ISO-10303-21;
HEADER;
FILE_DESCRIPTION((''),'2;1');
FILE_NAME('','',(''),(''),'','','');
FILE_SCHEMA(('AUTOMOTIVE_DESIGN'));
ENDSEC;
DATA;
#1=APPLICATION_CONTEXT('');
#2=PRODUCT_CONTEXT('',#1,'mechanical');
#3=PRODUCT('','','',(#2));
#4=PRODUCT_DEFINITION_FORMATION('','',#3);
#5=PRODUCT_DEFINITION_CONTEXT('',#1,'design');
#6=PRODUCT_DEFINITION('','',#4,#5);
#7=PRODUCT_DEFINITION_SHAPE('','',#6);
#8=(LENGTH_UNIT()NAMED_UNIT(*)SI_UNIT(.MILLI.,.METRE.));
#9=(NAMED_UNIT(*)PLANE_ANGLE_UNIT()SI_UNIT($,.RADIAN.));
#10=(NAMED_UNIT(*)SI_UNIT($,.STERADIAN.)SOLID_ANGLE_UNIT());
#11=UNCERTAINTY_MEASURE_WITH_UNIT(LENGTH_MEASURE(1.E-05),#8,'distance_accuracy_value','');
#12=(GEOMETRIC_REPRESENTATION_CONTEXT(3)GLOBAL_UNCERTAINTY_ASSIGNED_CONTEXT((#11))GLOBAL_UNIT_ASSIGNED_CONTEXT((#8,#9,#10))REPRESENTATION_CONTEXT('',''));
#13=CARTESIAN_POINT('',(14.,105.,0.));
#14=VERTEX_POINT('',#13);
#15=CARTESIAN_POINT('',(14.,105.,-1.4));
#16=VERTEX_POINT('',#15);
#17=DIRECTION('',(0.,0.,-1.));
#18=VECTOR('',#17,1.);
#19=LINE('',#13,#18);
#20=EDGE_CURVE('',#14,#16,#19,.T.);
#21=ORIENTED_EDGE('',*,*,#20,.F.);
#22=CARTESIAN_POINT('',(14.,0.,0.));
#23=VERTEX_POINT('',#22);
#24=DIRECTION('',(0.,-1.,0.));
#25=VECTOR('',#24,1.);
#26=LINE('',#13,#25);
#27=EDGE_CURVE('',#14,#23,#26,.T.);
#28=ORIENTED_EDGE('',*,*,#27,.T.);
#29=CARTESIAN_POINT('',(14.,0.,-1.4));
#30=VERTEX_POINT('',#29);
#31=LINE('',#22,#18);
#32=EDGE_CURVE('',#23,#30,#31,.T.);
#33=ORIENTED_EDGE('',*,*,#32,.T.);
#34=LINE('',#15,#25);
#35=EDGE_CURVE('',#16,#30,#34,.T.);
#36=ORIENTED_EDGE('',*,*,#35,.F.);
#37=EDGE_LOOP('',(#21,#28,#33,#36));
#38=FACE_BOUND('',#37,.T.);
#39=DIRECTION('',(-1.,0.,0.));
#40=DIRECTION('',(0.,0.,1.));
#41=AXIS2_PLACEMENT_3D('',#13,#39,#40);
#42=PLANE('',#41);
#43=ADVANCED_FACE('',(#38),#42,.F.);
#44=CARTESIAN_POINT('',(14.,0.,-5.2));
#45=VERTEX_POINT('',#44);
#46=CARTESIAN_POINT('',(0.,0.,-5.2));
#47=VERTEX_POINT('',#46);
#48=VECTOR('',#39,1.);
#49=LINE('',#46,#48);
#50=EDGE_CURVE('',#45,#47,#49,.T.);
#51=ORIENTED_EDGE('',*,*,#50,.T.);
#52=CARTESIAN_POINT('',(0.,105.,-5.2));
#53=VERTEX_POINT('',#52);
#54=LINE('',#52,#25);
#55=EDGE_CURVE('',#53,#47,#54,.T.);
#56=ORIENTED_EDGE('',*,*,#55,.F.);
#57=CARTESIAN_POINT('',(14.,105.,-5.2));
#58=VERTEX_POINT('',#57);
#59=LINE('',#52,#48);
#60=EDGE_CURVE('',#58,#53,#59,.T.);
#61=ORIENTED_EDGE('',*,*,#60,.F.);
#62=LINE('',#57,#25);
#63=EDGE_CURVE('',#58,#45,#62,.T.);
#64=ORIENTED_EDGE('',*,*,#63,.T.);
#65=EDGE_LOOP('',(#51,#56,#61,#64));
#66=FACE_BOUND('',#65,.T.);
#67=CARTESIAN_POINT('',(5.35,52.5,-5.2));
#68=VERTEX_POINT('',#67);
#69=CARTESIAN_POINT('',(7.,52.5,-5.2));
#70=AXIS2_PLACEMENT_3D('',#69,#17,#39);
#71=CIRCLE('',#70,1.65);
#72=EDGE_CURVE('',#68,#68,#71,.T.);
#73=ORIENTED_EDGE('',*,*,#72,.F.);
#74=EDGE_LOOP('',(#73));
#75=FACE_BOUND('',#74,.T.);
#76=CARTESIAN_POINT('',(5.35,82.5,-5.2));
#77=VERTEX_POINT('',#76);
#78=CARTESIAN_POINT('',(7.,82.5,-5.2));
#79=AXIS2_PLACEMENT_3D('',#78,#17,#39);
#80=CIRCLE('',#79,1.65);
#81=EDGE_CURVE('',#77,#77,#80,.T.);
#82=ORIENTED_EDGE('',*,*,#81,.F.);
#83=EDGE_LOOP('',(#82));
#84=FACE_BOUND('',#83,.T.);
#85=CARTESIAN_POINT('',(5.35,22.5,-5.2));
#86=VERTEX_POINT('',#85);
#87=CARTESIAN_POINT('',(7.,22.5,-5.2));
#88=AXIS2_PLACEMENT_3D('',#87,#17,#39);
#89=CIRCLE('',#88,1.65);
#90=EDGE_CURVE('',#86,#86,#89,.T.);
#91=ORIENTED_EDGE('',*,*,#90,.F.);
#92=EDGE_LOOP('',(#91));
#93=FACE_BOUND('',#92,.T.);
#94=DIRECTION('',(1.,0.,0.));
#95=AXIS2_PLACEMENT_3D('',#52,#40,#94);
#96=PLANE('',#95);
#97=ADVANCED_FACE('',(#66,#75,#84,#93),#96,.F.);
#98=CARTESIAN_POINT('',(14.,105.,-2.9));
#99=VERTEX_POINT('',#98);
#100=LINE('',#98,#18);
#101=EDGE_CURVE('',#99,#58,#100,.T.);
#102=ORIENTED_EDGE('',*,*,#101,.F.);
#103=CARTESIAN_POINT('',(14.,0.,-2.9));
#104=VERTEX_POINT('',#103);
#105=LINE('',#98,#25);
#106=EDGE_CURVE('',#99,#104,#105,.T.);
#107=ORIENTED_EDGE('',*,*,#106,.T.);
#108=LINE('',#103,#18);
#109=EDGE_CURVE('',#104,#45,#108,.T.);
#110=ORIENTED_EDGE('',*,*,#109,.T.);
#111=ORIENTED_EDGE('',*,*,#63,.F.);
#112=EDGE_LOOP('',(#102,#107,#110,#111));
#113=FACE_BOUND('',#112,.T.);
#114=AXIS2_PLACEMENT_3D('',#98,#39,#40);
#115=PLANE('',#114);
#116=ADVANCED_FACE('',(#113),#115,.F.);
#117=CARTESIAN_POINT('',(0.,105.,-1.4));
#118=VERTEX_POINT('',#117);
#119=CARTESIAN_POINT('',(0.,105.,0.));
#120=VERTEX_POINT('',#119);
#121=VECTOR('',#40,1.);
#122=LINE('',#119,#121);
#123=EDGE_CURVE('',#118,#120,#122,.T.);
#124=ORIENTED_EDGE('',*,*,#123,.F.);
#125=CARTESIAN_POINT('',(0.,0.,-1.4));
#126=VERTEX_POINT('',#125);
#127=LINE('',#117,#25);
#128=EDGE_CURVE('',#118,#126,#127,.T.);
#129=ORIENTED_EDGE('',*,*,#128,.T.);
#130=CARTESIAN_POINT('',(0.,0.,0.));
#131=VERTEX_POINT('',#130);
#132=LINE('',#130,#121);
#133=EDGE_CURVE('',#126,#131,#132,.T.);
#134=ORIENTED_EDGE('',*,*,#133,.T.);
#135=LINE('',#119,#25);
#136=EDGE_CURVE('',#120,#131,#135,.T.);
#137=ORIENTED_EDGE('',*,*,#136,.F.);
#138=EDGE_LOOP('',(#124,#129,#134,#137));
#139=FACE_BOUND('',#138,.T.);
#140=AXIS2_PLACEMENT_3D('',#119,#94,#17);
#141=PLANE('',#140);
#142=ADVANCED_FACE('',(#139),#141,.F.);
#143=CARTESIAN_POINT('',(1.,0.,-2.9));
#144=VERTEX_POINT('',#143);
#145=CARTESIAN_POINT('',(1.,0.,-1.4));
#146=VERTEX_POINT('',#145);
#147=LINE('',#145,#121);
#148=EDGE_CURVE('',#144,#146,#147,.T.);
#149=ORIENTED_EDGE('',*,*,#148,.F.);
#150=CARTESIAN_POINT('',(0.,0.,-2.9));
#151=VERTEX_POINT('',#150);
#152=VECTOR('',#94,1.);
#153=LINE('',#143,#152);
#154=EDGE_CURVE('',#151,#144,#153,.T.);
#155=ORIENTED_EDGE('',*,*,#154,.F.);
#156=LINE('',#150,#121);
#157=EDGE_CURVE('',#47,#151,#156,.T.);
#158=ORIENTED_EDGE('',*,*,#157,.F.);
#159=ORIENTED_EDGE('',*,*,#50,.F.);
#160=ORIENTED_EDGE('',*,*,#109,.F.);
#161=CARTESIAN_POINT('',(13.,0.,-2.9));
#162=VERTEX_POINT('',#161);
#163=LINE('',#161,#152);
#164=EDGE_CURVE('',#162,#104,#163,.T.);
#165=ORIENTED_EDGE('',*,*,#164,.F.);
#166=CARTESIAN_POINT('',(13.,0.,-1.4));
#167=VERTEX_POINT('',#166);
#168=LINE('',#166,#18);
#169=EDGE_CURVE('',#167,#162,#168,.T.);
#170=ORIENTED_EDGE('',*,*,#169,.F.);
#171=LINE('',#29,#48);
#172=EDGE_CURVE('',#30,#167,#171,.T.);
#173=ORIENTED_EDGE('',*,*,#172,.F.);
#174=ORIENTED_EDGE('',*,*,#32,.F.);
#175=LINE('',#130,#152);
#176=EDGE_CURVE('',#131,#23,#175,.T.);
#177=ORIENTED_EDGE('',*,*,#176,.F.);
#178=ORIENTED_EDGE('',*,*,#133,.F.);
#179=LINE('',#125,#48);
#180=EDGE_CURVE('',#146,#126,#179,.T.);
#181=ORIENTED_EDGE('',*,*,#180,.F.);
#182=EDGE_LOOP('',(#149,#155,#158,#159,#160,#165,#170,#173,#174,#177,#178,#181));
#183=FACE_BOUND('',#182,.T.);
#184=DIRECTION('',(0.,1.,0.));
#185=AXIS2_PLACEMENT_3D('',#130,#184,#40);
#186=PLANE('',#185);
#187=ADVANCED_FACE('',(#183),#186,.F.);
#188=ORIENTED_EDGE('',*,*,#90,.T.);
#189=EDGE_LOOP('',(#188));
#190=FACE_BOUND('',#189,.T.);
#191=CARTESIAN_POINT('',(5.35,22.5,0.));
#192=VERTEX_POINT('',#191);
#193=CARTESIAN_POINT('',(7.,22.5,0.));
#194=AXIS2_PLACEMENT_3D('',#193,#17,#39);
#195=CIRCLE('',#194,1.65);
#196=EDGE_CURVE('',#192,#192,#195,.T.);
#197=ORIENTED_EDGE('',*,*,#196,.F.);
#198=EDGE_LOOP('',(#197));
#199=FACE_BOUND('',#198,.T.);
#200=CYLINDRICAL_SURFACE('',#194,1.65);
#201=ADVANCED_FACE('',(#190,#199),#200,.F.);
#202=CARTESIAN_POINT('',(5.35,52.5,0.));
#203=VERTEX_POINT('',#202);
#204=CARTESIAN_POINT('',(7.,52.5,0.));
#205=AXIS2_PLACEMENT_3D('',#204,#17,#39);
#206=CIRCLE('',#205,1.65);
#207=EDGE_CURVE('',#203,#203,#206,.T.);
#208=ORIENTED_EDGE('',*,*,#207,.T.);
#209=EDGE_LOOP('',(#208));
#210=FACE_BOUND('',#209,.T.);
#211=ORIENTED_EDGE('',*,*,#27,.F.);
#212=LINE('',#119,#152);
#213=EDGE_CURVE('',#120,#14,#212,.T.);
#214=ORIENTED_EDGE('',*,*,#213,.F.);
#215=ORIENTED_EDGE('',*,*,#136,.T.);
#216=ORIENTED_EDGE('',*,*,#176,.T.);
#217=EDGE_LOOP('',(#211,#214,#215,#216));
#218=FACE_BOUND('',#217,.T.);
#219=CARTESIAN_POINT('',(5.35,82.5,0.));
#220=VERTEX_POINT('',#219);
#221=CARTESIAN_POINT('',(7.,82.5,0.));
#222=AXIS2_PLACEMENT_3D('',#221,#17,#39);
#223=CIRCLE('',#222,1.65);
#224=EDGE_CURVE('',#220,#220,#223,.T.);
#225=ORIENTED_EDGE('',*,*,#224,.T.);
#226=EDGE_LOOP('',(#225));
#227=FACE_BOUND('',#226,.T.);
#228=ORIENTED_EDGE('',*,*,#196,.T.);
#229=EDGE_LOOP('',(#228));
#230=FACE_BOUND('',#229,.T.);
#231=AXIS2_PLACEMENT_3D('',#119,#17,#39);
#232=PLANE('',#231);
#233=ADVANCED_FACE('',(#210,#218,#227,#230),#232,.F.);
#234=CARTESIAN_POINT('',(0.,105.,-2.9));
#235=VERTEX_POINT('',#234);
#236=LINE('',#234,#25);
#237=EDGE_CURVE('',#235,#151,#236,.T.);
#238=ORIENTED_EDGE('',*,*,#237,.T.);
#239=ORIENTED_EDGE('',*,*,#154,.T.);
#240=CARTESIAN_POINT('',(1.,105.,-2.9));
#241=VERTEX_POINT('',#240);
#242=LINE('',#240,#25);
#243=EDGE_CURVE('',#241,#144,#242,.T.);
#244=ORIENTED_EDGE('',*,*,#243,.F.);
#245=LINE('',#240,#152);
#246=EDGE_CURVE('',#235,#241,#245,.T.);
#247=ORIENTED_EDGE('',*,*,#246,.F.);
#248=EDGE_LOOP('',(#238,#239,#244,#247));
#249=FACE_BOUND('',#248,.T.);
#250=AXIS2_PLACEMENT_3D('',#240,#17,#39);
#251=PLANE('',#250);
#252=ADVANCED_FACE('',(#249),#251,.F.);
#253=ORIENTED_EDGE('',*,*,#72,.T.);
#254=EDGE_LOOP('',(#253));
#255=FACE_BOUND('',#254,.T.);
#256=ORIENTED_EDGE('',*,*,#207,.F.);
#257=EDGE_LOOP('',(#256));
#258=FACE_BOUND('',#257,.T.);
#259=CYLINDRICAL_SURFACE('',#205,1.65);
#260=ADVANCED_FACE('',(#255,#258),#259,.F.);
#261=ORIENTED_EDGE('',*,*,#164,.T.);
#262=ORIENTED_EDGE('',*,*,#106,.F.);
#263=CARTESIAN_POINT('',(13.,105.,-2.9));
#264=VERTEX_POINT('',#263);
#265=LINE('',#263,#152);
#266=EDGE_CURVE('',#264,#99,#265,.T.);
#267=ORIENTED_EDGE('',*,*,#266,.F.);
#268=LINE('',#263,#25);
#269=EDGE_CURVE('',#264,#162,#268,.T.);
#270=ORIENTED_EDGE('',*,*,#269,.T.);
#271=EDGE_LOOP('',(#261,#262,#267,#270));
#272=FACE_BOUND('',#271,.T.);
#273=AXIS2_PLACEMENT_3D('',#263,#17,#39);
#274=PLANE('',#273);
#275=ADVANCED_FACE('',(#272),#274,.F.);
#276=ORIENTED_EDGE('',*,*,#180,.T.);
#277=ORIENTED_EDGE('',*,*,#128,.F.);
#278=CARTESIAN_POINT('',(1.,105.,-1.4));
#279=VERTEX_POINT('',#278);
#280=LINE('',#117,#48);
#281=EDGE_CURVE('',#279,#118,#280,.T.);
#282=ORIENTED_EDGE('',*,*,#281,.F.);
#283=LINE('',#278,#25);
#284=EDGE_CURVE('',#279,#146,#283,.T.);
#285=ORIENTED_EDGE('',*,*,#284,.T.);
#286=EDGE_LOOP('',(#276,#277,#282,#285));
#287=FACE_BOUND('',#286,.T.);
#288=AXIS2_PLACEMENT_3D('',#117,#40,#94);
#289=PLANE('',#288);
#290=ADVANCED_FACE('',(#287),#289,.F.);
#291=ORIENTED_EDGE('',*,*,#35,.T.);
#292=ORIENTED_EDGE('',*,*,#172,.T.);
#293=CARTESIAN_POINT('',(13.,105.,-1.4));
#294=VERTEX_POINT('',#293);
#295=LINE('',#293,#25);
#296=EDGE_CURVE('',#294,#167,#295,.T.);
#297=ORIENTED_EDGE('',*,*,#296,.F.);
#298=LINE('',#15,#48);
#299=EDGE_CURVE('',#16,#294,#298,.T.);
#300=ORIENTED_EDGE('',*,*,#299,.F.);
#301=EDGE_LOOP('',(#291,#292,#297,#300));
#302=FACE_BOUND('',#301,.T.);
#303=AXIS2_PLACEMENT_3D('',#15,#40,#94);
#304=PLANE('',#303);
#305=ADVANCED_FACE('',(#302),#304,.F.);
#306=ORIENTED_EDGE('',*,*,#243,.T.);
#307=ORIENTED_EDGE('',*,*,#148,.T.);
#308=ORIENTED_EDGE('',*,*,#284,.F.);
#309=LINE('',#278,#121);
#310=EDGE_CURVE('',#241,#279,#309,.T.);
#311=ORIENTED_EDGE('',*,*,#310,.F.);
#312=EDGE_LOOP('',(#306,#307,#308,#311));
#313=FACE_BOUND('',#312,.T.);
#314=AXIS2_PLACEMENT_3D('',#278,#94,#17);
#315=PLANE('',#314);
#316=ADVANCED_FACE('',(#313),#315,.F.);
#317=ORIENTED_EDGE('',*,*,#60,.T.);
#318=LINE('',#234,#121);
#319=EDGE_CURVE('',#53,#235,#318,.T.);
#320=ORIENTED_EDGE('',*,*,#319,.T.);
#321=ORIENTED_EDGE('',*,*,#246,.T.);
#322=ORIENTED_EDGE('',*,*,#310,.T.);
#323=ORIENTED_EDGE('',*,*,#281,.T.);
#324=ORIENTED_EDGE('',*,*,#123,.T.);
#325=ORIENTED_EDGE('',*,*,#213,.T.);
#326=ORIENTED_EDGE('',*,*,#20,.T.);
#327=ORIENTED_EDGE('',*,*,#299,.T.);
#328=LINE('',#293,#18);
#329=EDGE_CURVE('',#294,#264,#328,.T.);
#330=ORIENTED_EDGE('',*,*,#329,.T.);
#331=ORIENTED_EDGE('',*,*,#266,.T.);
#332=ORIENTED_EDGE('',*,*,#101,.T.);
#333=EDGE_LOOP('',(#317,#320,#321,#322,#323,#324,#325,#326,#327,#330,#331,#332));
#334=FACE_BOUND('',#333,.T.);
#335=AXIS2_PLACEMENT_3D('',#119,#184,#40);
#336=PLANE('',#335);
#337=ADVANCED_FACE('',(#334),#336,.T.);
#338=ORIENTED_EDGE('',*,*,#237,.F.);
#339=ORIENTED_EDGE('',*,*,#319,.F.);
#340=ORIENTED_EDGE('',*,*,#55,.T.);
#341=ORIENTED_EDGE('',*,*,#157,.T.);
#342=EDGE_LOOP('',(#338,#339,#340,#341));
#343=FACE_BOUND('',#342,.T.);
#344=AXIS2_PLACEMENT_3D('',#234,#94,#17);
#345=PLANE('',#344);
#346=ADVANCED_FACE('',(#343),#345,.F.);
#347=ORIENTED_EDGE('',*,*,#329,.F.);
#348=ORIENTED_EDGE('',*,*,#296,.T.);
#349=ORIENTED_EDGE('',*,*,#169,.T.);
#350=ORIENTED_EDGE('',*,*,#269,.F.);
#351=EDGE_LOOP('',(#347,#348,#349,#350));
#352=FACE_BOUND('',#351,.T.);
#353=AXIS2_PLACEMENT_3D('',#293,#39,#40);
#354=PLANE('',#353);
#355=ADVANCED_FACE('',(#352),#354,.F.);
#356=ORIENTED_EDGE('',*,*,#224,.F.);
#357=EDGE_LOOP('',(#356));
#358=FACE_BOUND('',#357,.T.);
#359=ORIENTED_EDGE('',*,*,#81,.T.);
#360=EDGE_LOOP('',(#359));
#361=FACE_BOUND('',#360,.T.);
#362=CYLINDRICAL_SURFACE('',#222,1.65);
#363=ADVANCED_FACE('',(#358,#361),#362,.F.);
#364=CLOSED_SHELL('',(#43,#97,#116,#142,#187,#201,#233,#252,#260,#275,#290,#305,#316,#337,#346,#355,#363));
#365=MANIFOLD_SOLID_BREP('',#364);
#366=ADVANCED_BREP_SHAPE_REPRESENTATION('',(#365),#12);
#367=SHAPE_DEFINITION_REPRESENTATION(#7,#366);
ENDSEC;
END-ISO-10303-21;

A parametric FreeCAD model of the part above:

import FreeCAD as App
import Part
import Sketcher

V = App.Vector

doc = App.newDocument("Part")
body = doc.addObject("PartDesign::Body", "Body")

# Sketch on XZ plane
sketch1 = body.newObject("Sketcher::SketchObject", "Sketch")
sketch1.AttachmentSupport = (doc.getObject("XZ_Plane"), [""])
sketch1.MapMode = "FlatFace"
sketch1.addGeometry(Part.LineSegment(V(0, -1.4, 0), V(0, 0, 0)), False)
sketch1.addGeometry(Part.LineSegment(V(0, 0, 0), V(14, 0, 0)), False)
sketch1.addGeometry(Part.LineSegment(V(14, 0, 0), V(14, -1.4, 0)), False)
sketch1.addGeometry(Part.LineSegment(V(14, -1.4, 0), V(13, -1.4, 0)), False)
sketch1.addGeometry(Part.LineSegment(V(13, -1.4, 0), V(13, -2.9, 0)), False)
sketch1.addGeometry(Part.LineSegment(V(13, -2.9, 0), V(14, -2.9, 0)), False)
sketch1.addGeometry(Part.LineSegment(V(14, -2.9, 0), V(14, -5.2, 0)), False)
sketch1.addGeometry(Part.LineSegment(V(14, -5.2, 0), V(0, -5.2, 0)), False)
sketch1.addGeometry(Part.LineSegment(V(0, -5.2, 0), V(0, -2.9, 0)), False)
sketch1.addGeometry(Part.LineSegment(V(0, -2.9, 0), V(1, -2.9, 0)), False)
sketch1.addGeometry(Part.LineSegment(V(1, -2.9, 0), V(1, -1.4, 0)), False)
sketch1.addGeometry(Part.LineSegment(V(1, -1.4, 0), V(0, -1.4, 0)), False)
sketch1.addConstraint(Sketcher.Constraint("Coincident", 0, 2, 1, 1))
sketch1.addConstraint(Sketcher.Constraint("Coincident", 1, 2, 2, 1))
sketch1.addConstraint(Sketcher.Constraint("Coincident", 2, 2, 3, 1))
sketch1.addConstraint(Sketcher.Constraint("Coincident", 3, 2, 4, 1))
sketch1.addConstraint(Sketcher.Constraint("Coincident", 4, 2, 5, 1))
sketch1.addConstraint(Sketcher.Constraint("Coincident", 5, 2, 6, 1))
sketch1.addConstraint(Sketcher.Constraint("Coincident", 6, 2, 7, 1))
sketch1.addConstraint(Sketcher.Constraint("Coincident", 7, 2, 8, 1))
sketch1.addConstraint(Sketcher.Constraint("Coincident", 8, 2, 9, 1))
sketch1.addConstraint(Sketcher.Constraint("Coincident", 9, 2, 10, 1))
sketch1.addConstraint(Sketcher.Constraint("Coincident", 10, 2, 11, 1))
sketch1.addConstraint(Sketcher.Constraint("Coincident", 11, 2, 0, 1))
sketch1.addConstraint(Sketcher.Constraint("Vertical", 0))
sketch1.addConstraint(Sketcher.Constraint("Horizontal", 1))
sketch1.addConstraint(Sketcher.Constraint("Vertical", 2))
sketch1.addConstraint(Sketcher.Constraint("Horizontal", 3))
sketch1.addConstraint(Sketcher.Constraint("Vertical", 4))
sketch1.addConstraint(Sketcher.Constraint("Horizontal", 5))
sketch1.addConstraint(Sketcher.Constraint("Vertical", 6))
sketch1.addConstraint(Sketcher.Constraint("Horizontal", 7))
sketch1.addConstraint(Sketcher.Constraint("Vertical", 8))
sketch1.addConstraint(Sketcher.Constraint("Horizontal", 9))
sketch1.addConstraint(Sketcher.Constraint("Vertical", 10))
sketch1.addConstraint(Sketcher.Constraint("Horizontal", 11))
sketch1.addConstraint(Sketcher.Constraint("Coincident", 0, 2, -1, 1))
sketch1.addConstraint(Sketcher.Constraint("PointOnObject", 7, 2, -2))
sketch1.addConstraint(Sketcher.Constraint("Horizontal", 5, 2, 8, 2))
sketch1.addConstraint(Sketcher.Constraint("Horizontal", 3, 2, 10, 2))
sketch1.addConstraint(Sketcher.Constraint("Vertical", 2, 2, 5, 2))
sketch1.addConstraint(Sketcher.Constraint("Equal", 5, 9))
sketch1.addConstraint(Sketcher.Constraint("DistanceX", 1, 1, 1, 2, 14.0))
sketch1.addConstraint(Sketcher.Constraint("DistanceX", 3, 2, 3, 1, 1.0))
sketch1.addConstraint(Sketcher.Constraint("DistanceY", 0, 1, 0, 2, 1.4))
sketch1.addConstraint(Sketcher.Constraint("DistanceY", 4, 2, 4, 1, 1.5))
sketch1.addConstraint(Sketcher.Constraint("DistanceY", 6, 2, 6, 1, 2.3))
pad1 = body.newObject("PartDesign::Pad", "Pad")
pad1.Profile = sketch1
pad1.Length = 105
pad1.Reversed = True

# Sketch on XY plane
sketch2 = body.newObject("Sketcher::SketchObject", "Sketch001")
sketch2.AttachmentSupport = (doc.getObject("XY_Plane"), [""])
sketch2.MapMode = "FlatFace"
sketch2.AttachmentOffset = App.Placement(V(0, 0, -5.2), App.Rotation())
sketch2.addGeometry(Part.Circle(V(7, 52.5, 0), V(0, 0, 1), 1.6), False)
sketch2.addGeometry(Part.Circle(V(7, 82.5, 0), V(0, 0, 1), 1.6), False)
sketch2.addGeometry(Part.Circle(V(7, 22.5, 0), V(0, 0, 1), 1.6), False)
sketch2.addConstraint(Sketcher.Constraint("Equal", 0, 1))
sketch2.addConstraint(Sketcher.Constraint("Equal", 1, 2))
sketch2.addConstraint(Sketcher.Constraint("Vertical", 0, 3, 1, 3))
sketch2.addConstraint(Sketcher.Constraint("Vertical", 1, 3, 2, 3))
sketch2.addConstraint(Sketcher.Constraint("Diameter", 0, 3.3))
sketch2.addConstraint(Sketcher.Constraint("DistanceX", -1, 1, 0, 3, 7.0))
sketch2.addConstraint(Sketcher.Constraint("DistanceY", 0, 3, 1, 3, 30.0))
sketch2.addConstraint(Sketcher.Constraint("DistanceY", 2, 3, 0, 3, 30.0))
sketch2.addConstraint(Sketcher.Constraint("DistanceY", -1, 1, 0, 3, 52.5))
pocket1 = body.newObject("PartDesign::Pocket", "Pocket")
pocket1.Profile = sketch2
pocket1.Type = "ThroughAll"
pocket1.Reversed = True

doc.recompute()
